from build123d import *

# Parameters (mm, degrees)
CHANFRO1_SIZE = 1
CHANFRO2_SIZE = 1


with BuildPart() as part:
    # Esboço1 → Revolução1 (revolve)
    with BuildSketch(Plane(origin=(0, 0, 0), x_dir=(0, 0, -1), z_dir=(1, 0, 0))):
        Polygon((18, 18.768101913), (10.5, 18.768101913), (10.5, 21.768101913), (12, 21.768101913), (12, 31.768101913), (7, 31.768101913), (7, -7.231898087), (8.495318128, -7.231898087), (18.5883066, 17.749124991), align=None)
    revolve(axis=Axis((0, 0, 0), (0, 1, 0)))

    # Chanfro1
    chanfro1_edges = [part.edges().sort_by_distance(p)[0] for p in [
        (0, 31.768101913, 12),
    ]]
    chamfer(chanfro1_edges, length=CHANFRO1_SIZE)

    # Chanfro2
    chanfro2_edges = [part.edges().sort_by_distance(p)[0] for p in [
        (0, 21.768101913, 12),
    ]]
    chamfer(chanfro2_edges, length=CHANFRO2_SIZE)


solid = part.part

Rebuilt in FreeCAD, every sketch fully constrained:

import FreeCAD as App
import Part
import Sketcher
Q = App.Units.Quantity


def edges_at(feature, points):
    """Names of the edges that pass closest to the given points."""
    edges = feature.Shape.Edges
    near = lambda p: min(range(len(edges)), key=lambda i: edges[i].distToShape(Part.Vertex(*p))[0])
    return sorted({f"Edge{near(p) + 1}" for p in points})


def add_polygon(sketch, points):
    """Adds a closed chain of lines whose ends are joined by coincident constraints."""
    first, n = sketch.GeometryCount, len(points)
    for a, b in zip(points, points[1:] + points[:1]):
        sketch.addGeometry(Part.LineSegment(App.Vector(*a, 0), App.Vector(*b, 0)), False)
    for i in range(n):
        sketch.addConstraint(Sketcher.Constraint("Coincident", first + i, 2, first + (i + 1) % n, 1))

doc = App.newDocument("Part")
body = doc.addObject("PartDesign::Body", "Body")

# Sketch on YZ plane
sketch1 = body.newObject("Sketcher::SketchObject", "Sketch")
sketch1.AttachmentSupport = (doc.getObject("YZ_Plane"), [""])
sketch1.MapMode = "FlatFace"
add_polygon(sketch1, [(18.8, -18), (18.8, -10.5), (21.8, -10.5), (21.8, -12), (31.8, -12), (31.8, -7), (-7.2, -7), (-7.2, -8.5), (17.7, -18.6)])  # lines 0-8
sketch1.addConstraint(Sketcher.Constraint("Vertical", 0))
sketch1.addConstraint(Sketcher.Constraint("Horizontal", 1))
sketch1.addConstraint(Sketcher.Constraint("Vertical", 2))
sketch1.addConstraint(Sketcher.Constraint("Horizontal", 3))
sketch1.addConstraint(Sketcher.Constraint("Vertical", 4))
sketch1.addConstraint(Sketcher.Constraint("Horizontal", 5))
sketch1.addConstraint(Sketcher.Constraint("Vertical", 6))
sketch1.addConstraint(Sketcher.Constraint("DistanceX", 1, 1, 1, 2, Q("3 mm")))
sketch1.addConstraint(Sketcher.Constraint("DistanceX", 3, 1, 3, 2, Q("10 mm")))
sketch1.addConstraint(Sketcher.Constraint("DistanceX", 5, 2, 5, 1, Q("39 mm")))
sketch1.addConstraint(Sketcher.Constraint("DistanceY", 4, 1, 4, 2, Q("5 mm")))
sketch1.addConstraint(Sketcher.Constraint("Angle", 7, Q("-22 deg")))
sketch1.addConstraint(Sketcher.Constraint("Angle", 8, Q("30 deg")))
sketch1.addConstraint(Sketcher.Constraint("DistanceY", 0, 1, 0, 2, Q("7.5 mm")))
sketch1.addConstraint(Sketcher.Constraint("DistanceY", 2, 2, 2, 1, Q("1.5 mm")))
sketch1.addConstraint(Sketcher.Constraint("DistanceY", 2, 2, -1, 1, Q("12 mm")))
sketch1.addConstraint(Sketcher.Constraint("Distance", 7, Q("26.942901 mm")))
sketch1.addConstraint(Sketcher.Constraint("DistanceX", -1, 1, 0, 2, Q("18.768102 mm")))
revolution = body.newObject("PartDesign::Revolution", "Revolution")
revolution.Profile = sketch1
revolution.ReferenceAxis = (sketch1, ["H_Axis"])
revolution.Angle = 360
doc.recompute()

chamfer = body.newObject("PartDesign::Chamfer", "Chamfer")
chamfer.Base = (revolution, edges_at(revolution, [(0, 31.768, 12)]))
chamfer.Size = 1
doc.recompute()

chamfer2 = body.newObject("PartDesign::Chamfer", "Chamfer001")
chamfer2.Base = (chamfer, edges_at(chamfer, [(0, 21.768, 12)]))
chamfer2.Size = 1

doc.recompute()
